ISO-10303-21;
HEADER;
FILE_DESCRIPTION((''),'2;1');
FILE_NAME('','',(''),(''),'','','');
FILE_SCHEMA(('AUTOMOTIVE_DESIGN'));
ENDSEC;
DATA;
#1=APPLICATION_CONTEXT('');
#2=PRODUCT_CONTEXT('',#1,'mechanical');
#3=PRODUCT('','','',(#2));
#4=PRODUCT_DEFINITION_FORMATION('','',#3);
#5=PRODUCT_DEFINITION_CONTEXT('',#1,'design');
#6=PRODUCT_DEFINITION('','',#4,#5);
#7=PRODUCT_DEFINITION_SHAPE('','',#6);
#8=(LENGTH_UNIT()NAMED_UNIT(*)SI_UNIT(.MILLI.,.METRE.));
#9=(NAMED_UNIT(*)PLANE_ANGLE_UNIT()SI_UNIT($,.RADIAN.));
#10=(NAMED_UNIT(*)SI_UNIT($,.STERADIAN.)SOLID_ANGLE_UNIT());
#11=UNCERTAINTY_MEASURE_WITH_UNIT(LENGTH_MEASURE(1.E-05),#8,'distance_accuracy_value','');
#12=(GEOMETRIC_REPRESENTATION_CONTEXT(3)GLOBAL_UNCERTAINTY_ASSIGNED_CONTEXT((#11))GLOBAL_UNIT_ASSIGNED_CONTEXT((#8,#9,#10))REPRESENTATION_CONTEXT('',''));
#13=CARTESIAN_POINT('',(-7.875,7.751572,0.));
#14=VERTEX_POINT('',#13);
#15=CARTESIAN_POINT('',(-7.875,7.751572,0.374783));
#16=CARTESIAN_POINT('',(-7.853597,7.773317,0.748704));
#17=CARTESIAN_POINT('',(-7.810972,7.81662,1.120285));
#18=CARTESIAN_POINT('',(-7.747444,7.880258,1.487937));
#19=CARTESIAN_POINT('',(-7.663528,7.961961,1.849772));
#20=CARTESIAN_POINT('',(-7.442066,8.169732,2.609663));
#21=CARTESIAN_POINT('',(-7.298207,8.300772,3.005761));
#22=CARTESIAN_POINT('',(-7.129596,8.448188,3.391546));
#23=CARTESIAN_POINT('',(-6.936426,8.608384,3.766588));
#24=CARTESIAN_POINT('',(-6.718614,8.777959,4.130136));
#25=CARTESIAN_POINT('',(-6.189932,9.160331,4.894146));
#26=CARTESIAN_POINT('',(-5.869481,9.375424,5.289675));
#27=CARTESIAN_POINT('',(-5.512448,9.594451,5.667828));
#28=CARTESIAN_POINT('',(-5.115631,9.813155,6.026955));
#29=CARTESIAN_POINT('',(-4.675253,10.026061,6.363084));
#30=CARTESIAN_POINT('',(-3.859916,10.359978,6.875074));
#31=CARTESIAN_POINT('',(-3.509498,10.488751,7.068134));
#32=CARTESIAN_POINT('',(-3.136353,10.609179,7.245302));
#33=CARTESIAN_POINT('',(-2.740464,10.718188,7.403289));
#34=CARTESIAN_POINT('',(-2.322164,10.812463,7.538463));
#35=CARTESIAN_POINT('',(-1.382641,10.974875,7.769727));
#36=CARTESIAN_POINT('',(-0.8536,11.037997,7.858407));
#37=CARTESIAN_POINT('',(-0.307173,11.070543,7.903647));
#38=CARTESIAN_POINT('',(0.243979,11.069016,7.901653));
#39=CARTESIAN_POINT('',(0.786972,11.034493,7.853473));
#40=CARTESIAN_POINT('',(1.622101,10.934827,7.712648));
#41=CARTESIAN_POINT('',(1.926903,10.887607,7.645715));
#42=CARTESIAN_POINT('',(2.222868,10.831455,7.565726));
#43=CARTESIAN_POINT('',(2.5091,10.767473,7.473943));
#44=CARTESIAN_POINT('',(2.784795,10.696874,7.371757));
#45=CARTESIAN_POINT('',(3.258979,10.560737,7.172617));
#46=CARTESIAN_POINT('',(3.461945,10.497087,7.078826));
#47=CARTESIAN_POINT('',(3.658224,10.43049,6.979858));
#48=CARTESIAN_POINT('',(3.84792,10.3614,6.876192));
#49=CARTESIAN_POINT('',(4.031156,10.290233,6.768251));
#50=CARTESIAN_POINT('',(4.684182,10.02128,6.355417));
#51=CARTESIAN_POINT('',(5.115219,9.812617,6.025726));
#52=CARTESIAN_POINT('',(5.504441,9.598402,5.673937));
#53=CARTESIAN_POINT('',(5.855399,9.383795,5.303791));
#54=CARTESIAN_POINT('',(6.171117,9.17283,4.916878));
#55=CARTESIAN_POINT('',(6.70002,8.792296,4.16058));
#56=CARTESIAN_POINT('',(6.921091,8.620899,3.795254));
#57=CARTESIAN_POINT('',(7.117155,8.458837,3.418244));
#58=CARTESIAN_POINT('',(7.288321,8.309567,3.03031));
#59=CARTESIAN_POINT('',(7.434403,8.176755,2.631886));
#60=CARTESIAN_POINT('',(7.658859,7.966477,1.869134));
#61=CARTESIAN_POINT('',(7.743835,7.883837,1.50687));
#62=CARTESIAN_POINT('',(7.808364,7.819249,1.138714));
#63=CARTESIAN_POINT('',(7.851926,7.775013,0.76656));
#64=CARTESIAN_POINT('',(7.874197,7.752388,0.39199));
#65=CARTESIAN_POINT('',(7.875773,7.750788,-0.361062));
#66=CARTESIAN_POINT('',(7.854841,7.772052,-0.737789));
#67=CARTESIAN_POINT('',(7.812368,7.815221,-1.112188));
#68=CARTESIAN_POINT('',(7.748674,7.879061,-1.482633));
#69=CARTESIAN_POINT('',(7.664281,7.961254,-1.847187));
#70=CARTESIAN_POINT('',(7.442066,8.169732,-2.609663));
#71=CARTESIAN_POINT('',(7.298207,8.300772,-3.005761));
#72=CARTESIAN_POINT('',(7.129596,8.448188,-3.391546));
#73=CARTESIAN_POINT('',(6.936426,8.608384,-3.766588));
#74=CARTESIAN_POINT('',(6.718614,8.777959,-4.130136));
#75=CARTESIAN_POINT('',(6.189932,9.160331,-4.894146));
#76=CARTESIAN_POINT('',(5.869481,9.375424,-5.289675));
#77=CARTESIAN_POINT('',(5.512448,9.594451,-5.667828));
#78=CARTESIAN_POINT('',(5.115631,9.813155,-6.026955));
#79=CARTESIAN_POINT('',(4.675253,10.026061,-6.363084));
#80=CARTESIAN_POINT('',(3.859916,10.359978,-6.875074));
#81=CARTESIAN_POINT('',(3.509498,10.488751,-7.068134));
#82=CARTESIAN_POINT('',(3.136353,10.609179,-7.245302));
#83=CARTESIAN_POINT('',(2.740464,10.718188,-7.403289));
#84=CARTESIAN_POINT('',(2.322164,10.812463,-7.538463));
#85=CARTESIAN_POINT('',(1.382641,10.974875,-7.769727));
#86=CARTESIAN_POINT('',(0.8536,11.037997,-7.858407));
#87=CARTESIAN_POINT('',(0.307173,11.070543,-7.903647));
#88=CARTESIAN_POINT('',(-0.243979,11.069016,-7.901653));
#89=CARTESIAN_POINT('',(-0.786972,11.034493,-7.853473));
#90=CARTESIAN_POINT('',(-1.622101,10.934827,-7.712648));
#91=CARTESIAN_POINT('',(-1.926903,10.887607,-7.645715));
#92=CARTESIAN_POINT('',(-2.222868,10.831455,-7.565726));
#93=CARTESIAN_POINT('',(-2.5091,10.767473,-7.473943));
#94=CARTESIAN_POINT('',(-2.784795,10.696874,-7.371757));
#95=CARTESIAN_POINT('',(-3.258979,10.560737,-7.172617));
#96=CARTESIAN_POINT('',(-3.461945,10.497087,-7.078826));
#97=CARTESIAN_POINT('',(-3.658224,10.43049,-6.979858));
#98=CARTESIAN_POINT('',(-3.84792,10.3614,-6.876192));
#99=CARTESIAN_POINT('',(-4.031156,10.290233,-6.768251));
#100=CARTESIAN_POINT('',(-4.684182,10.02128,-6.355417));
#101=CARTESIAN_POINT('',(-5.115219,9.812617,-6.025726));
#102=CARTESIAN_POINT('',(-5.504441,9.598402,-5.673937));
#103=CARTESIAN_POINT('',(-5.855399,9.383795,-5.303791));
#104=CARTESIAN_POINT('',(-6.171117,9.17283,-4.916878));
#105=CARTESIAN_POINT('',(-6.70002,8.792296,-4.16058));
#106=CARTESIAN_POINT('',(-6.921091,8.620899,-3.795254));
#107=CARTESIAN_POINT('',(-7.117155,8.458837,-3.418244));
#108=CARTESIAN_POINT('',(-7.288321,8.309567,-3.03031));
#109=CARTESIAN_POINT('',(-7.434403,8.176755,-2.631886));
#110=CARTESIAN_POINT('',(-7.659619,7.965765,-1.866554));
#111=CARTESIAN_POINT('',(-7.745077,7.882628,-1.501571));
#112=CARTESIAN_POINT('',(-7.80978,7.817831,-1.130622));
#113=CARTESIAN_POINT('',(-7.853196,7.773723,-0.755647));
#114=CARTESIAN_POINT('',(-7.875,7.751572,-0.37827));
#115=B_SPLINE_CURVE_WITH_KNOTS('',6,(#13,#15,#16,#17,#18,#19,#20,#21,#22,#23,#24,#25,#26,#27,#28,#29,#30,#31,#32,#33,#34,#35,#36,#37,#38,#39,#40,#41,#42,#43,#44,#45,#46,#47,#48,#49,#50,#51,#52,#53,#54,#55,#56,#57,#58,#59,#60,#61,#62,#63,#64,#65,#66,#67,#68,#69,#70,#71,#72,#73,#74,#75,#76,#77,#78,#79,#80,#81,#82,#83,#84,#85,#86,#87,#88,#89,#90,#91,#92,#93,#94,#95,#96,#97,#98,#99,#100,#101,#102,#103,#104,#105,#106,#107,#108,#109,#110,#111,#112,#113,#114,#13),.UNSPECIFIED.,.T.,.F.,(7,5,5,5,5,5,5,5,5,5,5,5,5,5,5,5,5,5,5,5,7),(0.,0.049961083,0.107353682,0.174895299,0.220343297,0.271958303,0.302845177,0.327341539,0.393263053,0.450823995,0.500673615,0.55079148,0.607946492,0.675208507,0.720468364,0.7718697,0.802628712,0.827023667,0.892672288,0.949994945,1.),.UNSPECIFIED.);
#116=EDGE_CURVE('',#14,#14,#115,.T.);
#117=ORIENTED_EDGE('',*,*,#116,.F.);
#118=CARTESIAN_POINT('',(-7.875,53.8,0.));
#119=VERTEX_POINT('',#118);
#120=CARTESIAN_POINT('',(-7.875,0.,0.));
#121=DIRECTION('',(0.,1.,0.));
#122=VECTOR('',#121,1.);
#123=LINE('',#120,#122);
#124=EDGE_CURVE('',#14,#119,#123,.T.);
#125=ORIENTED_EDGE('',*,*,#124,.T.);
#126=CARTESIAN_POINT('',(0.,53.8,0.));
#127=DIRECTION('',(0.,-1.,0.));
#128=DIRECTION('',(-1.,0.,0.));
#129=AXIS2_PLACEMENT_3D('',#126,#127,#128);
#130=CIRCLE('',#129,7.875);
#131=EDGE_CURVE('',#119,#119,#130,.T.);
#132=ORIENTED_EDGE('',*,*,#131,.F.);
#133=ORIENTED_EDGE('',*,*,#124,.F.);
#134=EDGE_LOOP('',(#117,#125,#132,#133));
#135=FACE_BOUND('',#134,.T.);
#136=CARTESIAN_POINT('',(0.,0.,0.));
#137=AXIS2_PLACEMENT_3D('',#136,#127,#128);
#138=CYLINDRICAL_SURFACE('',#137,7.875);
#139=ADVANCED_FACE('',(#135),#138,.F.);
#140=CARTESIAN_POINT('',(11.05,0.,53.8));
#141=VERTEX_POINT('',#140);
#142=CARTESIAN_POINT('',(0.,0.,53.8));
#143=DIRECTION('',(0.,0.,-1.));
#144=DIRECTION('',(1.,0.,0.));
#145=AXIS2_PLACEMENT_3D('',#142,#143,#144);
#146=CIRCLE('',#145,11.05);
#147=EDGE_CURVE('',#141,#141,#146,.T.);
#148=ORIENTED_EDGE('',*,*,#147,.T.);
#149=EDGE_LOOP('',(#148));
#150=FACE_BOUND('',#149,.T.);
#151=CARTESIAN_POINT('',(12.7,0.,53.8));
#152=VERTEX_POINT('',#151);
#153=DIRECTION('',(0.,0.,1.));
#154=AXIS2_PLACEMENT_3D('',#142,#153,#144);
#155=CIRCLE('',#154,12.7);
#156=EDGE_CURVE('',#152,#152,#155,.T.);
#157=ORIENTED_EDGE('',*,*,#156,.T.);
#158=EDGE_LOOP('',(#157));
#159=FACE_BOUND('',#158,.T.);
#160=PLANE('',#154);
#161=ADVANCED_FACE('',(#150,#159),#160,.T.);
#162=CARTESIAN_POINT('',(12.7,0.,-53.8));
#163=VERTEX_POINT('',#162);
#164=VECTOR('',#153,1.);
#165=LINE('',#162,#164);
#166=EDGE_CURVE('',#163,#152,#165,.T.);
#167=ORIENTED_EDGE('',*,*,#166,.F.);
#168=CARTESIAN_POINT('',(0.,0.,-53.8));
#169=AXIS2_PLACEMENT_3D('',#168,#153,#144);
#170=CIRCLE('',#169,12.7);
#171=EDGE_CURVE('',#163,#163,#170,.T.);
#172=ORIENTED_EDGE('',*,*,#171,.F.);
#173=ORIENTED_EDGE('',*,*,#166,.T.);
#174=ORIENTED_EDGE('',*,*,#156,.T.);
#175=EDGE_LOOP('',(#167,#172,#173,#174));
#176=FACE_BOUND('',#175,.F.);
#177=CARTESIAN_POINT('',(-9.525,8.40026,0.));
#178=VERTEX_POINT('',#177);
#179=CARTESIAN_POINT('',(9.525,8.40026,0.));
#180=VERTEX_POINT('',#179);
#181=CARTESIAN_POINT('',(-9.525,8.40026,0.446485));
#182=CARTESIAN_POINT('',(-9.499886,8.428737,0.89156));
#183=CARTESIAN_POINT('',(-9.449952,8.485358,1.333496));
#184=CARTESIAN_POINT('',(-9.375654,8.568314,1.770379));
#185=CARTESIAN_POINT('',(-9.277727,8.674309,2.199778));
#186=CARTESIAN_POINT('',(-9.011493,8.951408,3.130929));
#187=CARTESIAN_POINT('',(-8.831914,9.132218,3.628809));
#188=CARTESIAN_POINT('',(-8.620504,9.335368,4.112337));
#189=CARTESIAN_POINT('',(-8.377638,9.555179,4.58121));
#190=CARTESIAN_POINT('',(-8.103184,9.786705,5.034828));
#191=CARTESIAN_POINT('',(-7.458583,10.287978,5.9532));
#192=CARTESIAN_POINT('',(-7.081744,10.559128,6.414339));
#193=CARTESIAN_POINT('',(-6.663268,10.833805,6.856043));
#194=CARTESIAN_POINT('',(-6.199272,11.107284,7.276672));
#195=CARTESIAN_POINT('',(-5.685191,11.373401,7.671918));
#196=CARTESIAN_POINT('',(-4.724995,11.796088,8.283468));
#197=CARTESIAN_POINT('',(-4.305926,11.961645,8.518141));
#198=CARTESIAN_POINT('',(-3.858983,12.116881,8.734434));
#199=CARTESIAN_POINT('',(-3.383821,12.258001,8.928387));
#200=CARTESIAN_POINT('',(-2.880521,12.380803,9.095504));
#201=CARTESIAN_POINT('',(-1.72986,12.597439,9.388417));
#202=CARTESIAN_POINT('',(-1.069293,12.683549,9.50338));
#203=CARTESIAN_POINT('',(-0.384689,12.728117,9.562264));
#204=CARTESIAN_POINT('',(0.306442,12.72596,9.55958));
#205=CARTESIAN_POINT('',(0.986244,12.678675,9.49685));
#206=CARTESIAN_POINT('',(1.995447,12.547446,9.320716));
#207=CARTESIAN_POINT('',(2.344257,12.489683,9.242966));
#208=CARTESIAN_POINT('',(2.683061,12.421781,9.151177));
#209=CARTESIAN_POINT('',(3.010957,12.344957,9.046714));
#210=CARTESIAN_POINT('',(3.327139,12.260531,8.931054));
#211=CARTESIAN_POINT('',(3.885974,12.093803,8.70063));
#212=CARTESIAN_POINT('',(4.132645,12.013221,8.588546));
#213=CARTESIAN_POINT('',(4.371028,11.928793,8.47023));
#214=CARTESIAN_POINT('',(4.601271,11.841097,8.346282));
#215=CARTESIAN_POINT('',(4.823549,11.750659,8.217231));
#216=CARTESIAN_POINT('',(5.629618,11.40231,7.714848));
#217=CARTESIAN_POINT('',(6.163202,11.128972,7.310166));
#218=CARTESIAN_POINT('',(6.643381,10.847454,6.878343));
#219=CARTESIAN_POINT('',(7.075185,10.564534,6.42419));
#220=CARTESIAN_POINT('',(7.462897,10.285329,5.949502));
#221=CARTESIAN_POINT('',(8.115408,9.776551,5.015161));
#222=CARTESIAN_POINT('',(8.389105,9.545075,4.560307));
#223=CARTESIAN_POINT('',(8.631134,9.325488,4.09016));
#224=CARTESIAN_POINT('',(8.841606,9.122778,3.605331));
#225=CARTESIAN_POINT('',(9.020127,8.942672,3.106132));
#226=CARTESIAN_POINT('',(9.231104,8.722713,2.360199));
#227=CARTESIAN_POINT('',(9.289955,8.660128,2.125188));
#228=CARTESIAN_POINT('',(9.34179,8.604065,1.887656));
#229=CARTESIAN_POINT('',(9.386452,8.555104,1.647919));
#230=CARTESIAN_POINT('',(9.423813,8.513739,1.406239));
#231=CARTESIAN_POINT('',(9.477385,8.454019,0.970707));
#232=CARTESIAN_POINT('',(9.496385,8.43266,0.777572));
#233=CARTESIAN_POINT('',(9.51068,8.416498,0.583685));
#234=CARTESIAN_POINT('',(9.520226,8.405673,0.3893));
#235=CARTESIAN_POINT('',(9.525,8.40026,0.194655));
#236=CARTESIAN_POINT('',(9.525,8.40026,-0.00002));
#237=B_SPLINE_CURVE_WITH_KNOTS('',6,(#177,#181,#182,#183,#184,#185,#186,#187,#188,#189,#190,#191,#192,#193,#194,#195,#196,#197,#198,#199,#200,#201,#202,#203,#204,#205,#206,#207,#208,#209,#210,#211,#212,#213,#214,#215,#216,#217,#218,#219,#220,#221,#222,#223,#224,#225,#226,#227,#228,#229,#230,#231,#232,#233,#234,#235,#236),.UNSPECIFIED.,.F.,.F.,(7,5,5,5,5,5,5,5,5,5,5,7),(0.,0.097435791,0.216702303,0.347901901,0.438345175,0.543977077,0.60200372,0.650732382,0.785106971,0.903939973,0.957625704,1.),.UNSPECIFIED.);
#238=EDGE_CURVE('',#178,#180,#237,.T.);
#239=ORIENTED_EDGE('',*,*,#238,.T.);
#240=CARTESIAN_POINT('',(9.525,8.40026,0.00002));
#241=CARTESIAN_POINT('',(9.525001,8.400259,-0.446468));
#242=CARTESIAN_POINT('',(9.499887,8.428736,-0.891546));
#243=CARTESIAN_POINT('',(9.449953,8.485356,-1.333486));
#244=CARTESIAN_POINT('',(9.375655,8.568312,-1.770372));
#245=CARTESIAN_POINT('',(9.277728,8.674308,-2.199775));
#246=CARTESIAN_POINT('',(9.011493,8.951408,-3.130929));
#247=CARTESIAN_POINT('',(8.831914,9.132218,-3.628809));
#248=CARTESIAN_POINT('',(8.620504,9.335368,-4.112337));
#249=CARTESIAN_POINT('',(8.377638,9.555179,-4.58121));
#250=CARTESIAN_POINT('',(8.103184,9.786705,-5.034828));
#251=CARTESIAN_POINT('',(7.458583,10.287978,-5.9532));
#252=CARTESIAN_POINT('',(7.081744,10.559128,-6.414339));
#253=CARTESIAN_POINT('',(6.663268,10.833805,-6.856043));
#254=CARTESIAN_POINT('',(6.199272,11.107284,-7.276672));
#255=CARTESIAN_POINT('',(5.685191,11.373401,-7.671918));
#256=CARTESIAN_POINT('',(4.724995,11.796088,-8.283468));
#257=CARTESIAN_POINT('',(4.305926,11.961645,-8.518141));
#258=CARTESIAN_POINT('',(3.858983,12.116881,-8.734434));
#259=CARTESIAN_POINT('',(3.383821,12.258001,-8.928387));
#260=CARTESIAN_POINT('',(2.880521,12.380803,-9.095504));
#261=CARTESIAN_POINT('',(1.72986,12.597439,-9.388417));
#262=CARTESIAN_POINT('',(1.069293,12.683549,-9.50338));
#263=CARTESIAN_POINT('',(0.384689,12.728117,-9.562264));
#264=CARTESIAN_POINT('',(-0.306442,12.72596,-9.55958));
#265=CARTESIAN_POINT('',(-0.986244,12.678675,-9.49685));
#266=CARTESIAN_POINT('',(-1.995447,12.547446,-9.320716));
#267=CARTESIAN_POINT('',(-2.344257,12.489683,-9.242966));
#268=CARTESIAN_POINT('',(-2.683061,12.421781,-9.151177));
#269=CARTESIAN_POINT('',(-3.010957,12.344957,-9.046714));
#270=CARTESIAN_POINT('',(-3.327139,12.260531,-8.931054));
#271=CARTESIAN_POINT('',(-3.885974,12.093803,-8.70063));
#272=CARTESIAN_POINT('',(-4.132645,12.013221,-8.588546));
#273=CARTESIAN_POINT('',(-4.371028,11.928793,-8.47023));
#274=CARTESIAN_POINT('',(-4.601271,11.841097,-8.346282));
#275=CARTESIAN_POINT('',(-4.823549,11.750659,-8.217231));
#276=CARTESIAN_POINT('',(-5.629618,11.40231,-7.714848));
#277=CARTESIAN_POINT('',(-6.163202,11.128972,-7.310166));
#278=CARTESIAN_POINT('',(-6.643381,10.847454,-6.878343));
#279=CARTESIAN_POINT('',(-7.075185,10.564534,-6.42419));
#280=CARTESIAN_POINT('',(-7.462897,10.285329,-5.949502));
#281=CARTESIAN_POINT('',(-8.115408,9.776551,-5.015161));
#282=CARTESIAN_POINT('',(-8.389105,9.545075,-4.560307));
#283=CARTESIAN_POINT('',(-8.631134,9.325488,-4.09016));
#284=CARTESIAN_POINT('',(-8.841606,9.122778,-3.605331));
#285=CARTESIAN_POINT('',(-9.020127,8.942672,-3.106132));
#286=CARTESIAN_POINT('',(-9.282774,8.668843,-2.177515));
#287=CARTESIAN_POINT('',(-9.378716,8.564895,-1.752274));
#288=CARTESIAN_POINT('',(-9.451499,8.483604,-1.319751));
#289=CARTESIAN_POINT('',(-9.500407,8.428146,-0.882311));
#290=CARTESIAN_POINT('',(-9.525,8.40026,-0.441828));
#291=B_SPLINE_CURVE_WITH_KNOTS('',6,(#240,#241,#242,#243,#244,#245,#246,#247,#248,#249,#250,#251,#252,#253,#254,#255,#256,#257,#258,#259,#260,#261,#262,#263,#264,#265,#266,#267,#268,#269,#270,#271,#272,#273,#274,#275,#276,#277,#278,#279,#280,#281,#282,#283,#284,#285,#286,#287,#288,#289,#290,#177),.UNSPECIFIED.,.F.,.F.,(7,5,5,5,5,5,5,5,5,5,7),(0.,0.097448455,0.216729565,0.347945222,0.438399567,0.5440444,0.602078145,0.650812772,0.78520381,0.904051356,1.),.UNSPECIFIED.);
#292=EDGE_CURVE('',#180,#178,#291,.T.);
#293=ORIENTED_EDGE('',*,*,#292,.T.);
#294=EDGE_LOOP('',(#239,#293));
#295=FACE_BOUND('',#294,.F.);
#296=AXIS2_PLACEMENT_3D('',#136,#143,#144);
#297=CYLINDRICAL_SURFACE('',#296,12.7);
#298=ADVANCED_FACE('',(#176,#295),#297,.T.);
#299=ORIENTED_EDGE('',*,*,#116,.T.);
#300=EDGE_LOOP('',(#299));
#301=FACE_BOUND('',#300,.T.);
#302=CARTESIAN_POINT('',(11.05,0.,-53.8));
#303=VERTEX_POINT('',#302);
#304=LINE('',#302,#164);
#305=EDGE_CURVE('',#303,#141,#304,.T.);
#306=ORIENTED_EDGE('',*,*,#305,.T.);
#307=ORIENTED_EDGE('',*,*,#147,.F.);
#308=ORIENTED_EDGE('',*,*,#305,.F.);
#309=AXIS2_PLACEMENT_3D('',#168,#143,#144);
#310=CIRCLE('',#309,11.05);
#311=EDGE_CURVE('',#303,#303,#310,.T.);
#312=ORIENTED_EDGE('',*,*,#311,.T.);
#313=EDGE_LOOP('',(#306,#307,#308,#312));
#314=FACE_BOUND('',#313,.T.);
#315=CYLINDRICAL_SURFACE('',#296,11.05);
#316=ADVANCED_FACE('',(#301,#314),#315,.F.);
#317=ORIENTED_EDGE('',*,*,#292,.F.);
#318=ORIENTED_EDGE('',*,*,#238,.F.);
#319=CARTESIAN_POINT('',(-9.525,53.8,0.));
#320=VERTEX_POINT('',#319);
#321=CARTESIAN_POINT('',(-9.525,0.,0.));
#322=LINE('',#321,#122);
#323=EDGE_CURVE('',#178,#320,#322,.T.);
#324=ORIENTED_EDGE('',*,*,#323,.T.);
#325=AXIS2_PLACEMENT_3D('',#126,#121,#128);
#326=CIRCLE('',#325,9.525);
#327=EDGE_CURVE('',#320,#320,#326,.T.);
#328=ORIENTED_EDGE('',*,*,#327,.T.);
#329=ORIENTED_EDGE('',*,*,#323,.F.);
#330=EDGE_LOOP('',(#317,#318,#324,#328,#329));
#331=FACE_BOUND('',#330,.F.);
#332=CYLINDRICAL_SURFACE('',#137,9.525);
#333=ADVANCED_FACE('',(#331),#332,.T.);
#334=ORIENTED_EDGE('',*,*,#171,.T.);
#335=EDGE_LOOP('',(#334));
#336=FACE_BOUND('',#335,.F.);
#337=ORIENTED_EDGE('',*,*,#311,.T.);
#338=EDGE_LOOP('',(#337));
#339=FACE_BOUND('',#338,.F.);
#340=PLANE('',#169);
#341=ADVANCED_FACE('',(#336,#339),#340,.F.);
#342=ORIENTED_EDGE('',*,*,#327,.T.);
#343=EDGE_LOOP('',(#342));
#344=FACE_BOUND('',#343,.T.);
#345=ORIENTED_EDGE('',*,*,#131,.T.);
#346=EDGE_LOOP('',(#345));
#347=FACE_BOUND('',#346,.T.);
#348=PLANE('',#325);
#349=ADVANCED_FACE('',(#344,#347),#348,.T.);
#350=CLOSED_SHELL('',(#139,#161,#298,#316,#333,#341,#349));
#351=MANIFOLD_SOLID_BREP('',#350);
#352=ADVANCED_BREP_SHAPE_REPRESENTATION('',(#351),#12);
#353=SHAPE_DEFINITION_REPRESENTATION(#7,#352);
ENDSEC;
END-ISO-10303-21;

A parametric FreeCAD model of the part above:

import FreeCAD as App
import Part
import Sketcher
from FreeCAD import Vector
Q = App.Units.Quantity


def faces_at(feature, points):
    """Names of the faces that lie closest to the given points."""
    faces = feature.Shape.Faces
    near = lambda p: min(range(len(faces)), key=lambda i: faces[i].distToShape(Part.Vertex(*p))[0])
    return sorted({f"Face{near(p) + 1}" for p in points})

doc = App.newDocument("Part")
params = doc.addObject("Spreadsheet::Sheet", "Params")
for row, (alias, value) in enumerate([
    ("sketch1_diameter", "1 in"),
    ("pad1_length", "107.6 mm"),
    ("sketch2_diameter", "0.75 in"),
    ("pad2_length", "2.1181102 in"),
    ("thickness_wall", "1.65 mm"),
], start=1):
    params.set(f"A{row}", alias)
    params.set(f"B{row}", "=" + value)
    params.setAlias(f"B{row}", alias)

body = doc.addObject("PartDesign::Body", "Body")

# Sketch on XY plane
sketch1 = body.newObject("Sketcher::SketchObject", "Sketch")
sketch1.AttachmentSupport = (doc.getObject("XY_Plane"), [""])
sketch1.MapMode = "FlatFace"
sketch1.addGeometry(Part.Circle(Vector(0, 0, 0), Vector(0, 0, 1), 13), False)
sketch1.addConstraint(Sketcher.Constraint("Coincident", 0, 3, -1, 1))
sketch1.addConstraint(Sketcher.Constraint("Diameter", 0, Q("1 in")))
sketch1.setExpression("Constraints[1]", "Params.sketch1_diameter")
pad1 = body.newObject("PartDesign::Pad", "Pad")
pad1.Profile = sketch1
pad1.setExpression("Length", "Params.pad1_length")
pad1.Midplane = True

# Sketch on XZ plane
sketch2 = body.newObject("Sketcher::SketchObject", "Sketch001")
sketch2.AttachmentSupport = (doc.getObject("XZ_Plane"), [""])
sketch2.MapMode = "FlatFace"
sketch2.addGeometry(Part.Circle(Vector(0, 0, 0), Vector(0, 0, 1), 10), False)
sketch2.addConstraint(Sketcher.Constraint("Coincident", 0, 3, -1, 1))
sketch2.addConstraint(Sketcher.Constraint("Diameter", 0, Q("0.75 in")))
sketch2.setExpression("Constraints[1]", "Params.sketch2_diameter")
pad2 = body.newObject("PartDesign::Pad", "Pad001")
pad2.Profile = sketch2
pad2.setExpression("Length", "Params.pad2_length")
pad2.Reversed = True
doc.recompute()

thickness = body.newObject("PartDesign::Thickness", "Thickness")
thickness.Base = (pad2, faces_at(pad2, [(2.811, 53.8, 0.044), (-3.625, -0.954, 53.8), (-3.625, -0.954, -53.8)]))
thickness.setExpression("Value", "Params.thickness_wall")
thickness.Reversed = True
thickness.Join = "Intersection"

doc.recompute()
